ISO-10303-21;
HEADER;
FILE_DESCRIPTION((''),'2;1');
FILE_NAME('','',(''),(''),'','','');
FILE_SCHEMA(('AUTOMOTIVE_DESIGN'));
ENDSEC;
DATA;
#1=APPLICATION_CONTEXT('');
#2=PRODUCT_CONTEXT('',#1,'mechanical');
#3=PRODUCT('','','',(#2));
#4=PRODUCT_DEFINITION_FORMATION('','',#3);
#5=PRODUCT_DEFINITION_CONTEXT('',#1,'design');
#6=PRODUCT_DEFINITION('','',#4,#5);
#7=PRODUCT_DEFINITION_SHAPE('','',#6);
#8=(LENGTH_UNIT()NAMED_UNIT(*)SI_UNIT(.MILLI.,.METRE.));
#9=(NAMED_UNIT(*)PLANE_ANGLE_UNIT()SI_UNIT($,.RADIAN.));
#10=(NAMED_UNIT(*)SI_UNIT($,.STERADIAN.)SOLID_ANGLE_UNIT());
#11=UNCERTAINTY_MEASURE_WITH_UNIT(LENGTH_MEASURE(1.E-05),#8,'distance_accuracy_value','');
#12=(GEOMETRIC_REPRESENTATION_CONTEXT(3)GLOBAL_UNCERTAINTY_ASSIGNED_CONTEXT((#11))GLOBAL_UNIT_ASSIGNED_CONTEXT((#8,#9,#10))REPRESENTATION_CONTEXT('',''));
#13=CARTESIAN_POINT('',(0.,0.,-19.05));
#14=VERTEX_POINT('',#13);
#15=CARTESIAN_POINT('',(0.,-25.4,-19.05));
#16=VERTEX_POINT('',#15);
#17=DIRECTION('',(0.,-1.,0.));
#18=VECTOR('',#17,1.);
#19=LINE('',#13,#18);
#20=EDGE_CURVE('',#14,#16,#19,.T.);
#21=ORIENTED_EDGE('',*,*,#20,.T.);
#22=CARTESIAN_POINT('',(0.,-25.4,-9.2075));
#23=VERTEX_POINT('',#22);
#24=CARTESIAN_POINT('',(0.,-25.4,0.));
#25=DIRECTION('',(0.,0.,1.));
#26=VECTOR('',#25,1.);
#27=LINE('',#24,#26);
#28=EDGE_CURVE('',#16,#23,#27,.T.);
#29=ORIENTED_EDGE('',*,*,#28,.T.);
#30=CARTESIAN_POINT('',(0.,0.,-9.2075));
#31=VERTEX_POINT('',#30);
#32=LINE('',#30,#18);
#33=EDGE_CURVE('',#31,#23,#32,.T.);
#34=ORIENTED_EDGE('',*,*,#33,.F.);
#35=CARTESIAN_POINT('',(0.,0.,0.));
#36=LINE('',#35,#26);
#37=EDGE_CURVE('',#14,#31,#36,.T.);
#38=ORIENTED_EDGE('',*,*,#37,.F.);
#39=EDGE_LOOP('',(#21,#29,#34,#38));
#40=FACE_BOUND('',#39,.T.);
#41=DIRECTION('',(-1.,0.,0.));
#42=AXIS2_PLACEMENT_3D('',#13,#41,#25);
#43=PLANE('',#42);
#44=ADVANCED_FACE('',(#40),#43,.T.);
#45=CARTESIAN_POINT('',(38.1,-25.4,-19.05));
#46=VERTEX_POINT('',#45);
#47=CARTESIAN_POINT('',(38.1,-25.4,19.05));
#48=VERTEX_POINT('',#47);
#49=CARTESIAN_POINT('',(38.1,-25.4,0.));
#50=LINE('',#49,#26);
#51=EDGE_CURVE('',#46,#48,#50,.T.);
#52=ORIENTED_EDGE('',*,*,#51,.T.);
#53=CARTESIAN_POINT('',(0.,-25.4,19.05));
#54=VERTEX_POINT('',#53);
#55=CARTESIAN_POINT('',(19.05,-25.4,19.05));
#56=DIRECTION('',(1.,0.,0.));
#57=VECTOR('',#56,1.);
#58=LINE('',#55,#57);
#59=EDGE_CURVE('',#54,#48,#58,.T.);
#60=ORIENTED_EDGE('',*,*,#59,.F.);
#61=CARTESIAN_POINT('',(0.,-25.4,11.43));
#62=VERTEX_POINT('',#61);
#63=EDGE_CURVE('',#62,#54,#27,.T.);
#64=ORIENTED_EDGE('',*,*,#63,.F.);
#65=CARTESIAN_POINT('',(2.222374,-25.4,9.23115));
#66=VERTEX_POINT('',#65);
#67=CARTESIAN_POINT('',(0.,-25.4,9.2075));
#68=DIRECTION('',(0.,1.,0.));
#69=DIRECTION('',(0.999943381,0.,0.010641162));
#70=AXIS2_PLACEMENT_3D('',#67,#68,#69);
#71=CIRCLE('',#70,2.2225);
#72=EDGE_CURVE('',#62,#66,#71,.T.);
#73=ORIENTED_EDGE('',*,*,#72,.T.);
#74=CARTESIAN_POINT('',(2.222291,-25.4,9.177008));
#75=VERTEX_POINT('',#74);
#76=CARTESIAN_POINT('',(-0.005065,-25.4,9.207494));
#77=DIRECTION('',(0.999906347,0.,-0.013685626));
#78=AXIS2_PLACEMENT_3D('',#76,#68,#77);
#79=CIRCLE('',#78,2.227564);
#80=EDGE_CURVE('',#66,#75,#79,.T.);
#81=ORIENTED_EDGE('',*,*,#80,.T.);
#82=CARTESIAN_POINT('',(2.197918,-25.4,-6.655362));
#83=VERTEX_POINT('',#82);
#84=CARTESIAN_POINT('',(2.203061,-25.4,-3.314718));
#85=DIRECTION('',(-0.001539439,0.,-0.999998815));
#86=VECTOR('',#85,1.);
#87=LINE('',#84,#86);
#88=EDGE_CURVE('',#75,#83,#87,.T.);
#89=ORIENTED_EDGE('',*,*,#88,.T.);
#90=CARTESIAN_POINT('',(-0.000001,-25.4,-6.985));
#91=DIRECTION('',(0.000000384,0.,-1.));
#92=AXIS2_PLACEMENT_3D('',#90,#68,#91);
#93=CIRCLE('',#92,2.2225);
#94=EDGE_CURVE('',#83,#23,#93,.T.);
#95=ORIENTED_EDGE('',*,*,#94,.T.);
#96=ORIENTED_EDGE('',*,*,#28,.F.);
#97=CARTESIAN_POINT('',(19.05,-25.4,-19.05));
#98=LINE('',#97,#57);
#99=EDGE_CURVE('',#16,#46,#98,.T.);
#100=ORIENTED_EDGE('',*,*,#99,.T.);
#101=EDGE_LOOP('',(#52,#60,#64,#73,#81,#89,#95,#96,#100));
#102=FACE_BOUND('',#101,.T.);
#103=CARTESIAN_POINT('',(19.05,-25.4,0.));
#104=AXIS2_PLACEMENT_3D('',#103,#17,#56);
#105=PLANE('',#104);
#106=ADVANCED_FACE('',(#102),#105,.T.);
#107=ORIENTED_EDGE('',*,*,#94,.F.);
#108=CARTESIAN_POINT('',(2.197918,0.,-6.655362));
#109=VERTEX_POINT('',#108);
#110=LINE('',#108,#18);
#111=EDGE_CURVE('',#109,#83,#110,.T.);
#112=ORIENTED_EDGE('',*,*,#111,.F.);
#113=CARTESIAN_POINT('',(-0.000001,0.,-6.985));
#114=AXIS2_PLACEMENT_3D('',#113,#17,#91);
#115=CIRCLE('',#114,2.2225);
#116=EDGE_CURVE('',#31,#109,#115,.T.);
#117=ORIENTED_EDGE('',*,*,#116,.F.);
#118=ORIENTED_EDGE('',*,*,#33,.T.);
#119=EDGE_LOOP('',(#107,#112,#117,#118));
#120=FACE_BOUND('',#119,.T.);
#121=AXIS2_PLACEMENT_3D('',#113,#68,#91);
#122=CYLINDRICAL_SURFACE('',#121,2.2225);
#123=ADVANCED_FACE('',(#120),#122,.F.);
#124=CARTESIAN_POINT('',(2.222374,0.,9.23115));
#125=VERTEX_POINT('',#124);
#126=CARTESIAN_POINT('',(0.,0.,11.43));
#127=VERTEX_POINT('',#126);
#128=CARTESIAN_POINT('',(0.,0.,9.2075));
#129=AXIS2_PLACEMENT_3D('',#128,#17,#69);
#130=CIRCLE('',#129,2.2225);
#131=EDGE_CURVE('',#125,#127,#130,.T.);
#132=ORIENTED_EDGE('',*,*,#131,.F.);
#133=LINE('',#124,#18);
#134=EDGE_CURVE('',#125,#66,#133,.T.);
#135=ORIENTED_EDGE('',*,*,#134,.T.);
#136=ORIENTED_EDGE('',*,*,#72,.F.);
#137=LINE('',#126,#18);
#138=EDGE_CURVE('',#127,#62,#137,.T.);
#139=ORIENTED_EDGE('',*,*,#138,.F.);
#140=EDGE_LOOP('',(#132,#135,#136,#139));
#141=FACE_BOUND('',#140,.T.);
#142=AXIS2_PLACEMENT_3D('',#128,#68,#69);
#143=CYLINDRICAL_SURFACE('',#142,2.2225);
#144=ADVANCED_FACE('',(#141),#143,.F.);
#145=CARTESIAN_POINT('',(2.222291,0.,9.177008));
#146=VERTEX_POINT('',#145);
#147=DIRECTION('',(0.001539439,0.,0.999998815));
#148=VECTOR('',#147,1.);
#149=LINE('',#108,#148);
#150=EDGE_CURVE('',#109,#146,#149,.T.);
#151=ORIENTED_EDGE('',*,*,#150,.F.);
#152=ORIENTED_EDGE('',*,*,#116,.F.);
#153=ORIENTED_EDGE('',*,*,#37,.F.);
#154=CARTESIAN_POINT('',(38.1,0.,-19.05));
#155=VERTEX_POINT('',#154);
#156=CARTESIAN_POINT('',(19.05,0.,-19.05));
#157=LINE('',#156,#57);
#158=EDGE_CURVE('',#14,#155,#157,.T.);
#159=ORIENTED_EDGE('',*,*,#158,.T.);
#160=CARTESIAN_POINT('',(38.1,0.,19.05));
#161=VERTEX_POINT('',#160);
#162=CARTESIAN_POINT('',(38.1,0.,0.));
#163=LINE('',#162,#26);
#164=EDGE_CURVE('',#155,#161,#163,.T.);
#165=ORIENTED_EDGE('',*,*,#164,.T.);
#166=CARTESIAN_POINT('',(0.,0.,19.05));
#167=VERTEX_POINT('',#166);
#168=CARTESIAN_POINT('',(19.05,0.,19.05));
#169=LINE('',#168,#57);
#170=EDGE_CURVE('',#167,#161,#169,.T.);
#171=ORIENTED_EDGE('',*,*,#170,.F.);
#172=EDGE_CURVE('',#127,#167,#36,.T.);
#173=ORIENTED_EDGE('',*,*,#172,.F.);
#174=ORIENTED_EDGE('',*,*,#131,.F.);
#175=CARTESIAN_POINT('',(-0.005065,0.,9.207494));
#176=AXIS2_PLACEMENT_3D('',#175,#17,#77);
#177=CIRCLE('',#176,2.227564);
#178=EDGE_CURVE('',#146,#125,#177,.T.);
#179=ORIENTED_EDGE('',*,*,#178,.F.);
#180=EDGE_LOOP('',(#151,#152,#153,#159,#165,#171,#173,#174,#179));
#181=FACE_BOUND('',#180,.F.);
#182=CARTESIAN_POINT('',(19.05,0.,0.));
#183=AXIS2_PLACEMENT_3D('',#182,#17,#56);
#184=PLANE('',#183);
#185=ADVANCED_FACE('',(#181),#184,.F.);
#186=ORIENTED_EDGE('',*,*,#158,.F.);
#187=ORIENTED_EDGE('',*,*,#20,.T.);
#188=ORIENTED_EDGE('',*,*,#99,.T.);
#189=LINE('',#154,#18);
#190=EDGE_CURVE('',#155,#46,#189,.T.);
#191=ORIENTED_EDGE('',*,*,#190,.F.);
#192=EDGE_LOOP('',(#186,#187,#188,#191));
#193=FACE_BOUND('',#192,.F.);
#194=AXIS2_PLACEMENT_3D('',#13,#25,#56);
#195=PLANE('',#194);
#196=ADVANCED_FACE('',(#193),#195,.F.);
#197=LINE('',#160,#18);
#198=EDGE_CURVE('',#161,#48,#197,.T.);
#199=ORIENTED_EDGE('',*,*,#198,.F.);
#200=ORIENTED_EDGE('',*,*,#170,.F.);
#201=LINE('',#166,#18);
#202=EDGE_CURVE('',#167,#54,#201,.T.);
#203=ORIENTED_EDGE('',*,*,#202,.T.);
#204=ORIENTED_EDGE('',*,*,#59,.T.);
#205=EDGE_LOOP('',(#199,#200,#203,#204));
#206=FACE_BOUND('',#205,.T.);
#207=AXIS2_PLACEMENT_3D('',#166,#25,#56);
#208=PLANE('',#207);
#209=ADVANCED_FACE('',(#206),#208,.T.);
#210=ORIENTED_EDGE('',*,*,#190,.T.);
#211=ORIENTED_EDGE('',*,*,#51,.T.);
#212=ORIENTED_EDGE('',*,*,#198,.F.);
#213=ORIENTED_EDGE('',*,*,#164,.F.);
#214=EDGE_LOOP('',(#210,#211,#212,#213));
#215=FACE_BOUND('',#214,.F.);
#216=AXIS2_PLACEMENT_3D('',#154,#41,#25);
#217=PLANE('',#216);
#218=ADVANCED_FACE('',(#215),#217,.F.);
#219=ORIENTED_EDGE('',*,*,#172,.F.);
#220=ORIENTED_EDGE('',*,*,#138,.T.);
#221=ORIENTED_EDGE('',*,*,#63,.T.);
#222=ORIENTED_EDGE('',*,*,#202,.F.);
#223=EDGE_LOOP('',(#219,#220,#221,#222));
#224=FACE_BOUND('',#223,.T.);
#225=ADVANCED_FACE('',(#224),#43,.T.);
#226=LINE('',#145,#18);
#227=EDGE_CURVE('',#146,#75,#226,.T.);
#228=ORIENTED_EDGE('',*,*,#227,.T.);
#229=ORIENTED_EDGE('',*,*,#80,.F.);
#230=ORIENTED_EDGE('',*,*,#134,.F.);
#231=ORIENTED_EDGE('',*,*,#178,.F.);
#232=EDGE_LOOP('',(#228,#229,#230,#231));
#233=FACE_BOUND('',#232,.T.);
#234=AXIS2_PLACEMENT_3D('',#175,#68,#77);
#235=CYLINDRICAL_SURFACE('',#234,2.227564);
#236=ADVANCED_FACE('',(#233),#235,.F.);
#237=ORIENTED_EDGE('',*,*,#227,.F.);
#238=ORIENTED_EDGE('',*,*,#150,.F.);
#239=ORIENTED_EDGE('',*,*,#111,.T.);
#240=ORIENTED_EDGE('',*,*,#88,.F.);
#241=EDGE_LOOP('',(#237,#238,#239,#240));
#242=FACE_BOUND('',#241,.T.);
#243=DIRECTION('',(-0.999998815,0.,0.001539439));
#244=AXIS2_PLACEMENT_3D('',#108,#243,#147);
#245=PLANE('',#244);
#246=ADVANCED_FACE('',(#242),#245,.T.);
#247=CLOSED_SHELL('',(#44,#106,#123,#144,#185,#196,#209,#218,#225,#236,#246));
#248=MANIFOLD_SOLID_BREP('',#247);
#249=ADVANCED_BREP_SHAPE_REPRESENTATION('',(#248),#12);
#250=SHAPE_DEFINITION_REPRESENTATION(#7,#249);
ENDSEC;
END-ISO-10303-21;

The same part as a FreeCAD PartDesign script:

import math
import FreeCAD as App
import Part
import Sketcher
from FreeCAD import Vector
Q = App.Units.Quantity

doc = App.newDocument("Part")
body = doc.addObject("PartDesign::Body", "Body")

sketch1 = doc.addObject("Sketcher::SketchObject", "Sketch")
body.addObject(sketch1)
sketch1.AttachmentSupport = (doc.XZ_Plane, [""])
sketch1.MapMode = "FlatFace"
sketch1.addGeometry([
    Part.LineSegment(Vector(0, 19.05, 0), Vector(0, -19.05, 0)),
    Part.LineSegment(Vector(0, -19.05, 0), Vector(38.1, -19.05, 0)),
    Part.LineSegment(Vector(38.1, -19.05, 0), Vector(38.1, 19.05, 0)),
    Part.LineSegment(Vector(38.1, 19.05, 0), Vector(0, 19.05, 0)),
], False)
sketch1.addConstraint([
    Sketcher.Constraint("Coincident", 0, 2, 1, 1),
    Sketcher.Constraint("Coincident", 1, 2, 2, 1),
    Sketcher.Constraint("Coincident", 2, 2, 3, 1),
    Sketcher.Constraint("Coincident", 3, 2, 0, 1),
    Sketcher.Constraint("Vertical", 0),
    Sketcher.Constraint("Horizontal", 1),
    Sketcher.Constraint("Vertical", 2),
    Sketcher.Constraint("Horizontal", 3),
    Sketcher.Constraint("Symmetric", 0, 2, 3, 2, -1, 1),
    Sketcher.Constraint("Equal", 3, 0),
    Sketcher.Constraint("DistanceX", 1, 1, 1, 2, Q("1.5 in")),
])
pad1 = doc.addObject("PartDesign::Pad", "Pad")
body.addObject(pad1)
pad1.Profile = sketch1
pad1.Length = Q("1 in")

sketch2 = doc.addObject("Sketcher::SketchObject", "Sketch001")
body.addObject(sketch2)
sketch2.AttachmentSupport = (doc.XZ_Plane, [""])
sketch2.MapMode = "FlatFace"
sketch2.addGeometry([
    Part.ArcOfCircle(Part.Circle(Vector(-0.005065, 9.207494, 0), Vector(0, 0, 1), 2.227564), math.radians(-0.784153), math.radians(0.608484)),
    Part.ArcOfCircle(Part.Circle(Vector(0, 9.2075, 0), Vector(0, 0, 1), 2.2225), math.radians(0.609705), math.radians(89.999996)),
    Part.LineSegment(Vector(0, 11.43, 0), Vector(0, -9.2075, 0)),
    Part.ArcOfCircle(Part.Circle(Vector(-0.000001, -6.985, 0), Vector(0, 0, 1), 2.2225), math.radians(-89.999978), math.radians(8.529484)),
    Part.LineSegment(Vector(2.197918, -6.655362, 0), Vector(2.222291, 9.177008, 0)),
], False)
sketch2.addConstraint([
    Sketcher.Constraint("Coincident", 0, 2, 1, 1),
    Sketcher.Constraint("Coincident", 1, 2, 2, 1),
    Sketcher.Constraint("Coincident", 2, 2, 3, 1),
    Sketcher.Constraint("Coincident", 3, 2, 4, 1),
    Sketcher.Constraint("Coincident", 4, 2, 0, 1),
    Sketcher.Constraint("Vertical", 2),
    Sketcher.Constraint("Equal", 1, 3),
    Sketcher.Constraint("PointOnObject", 1, 3, -2),
    Sketcher.Constraint("PointOnObject", 3, 3, -2),
    Sketcher.Constraint("PointOnObject", 1, 2, -2),
    Sketcher.Constraint("Radius", 1, Q("0.0875 in")),
    Sketcher.Constraint("DistanceY", 2, 2, 2, 1, Q("0.8125 in")),
    Sketcher.Constraint("DistanceY", -1, 1, 1, 2, Q("0.45 in")),
    Sketcher.Constraint("Radius", 0, Q("2.227564 mm")),
    Sketcher.Constraint("Distance", 4, Q("15.832389 mm")),
    Sketcher.Constraint("DistanceY", -1, 1, 0, 2, Q("9.23115 mm")),
    Sketcher.Constraint("DistanceX", -1, 1, 4, 2, Q("2.222291 mm")),
    Sketcher.Constraint("DistanceY", -1, 1, 4, 2, Q("9.177008 mm")),
])
pocket1 = doc.addObject("PartDesign::Pocket", "Pocket")
body.addObject(pocket1)
pocket1.Profile = sketch2
pocket1.Type = "ThroughAll"
pocket1.Reversed = True

doc.recompute()
